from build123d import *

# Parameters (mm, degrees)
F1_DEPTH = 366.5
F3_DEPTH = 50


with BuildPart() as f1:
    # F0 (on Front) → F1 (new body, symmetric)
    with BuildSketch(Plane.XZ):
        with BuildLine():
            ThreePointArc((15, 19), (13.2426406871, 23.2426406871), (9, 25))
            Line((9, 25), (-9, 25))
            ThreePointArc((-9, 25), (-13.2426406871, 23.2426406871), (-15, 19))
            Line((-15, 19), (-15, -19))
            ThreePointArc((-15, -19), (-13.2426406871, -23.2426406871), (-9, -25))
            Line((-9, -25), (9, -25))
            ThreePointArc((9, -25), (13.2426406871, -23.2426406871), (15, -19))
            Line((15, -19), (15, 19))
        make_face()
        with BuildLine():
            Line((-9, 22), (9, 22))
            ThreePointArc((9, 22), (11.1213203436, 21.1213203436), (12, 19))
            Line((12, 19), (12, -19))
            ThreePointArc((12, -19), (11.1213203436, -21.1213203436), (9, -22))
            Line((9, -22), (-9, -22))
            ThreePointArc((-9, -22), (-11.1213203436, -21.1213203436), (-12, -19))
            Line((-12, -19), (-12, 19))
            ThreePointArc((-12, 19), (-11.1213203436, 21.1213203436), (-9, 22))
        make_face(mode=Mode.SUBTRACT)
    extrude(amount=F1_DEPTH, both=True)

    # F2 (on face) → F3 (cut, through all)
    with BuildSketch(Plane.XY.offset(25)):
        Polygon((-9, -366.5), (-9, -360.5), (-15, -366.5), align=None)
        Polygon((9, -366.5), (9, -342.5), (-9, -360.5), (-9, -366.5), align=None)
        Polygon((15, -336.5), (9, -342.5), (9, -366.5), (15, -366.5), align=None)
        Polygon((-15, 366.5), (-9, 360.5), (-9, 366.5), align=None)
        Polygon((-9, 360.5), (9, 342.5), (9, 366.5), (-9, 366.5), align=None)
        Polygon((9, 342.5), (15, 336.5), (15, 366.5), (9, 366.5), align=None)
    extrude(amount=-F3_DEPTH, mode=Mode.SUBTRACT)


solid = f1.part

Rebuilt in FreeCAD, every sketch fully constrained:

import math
import FreeCAD as App
import Part
import Sketcher
from FreeCAD import Vector
Q = App.Units.Quantity


def add_polygon(sketch, points):
    """Adds a closed chain of lines whose ends are joined by coincident constraints."""
    first, n = sketch.GeometryCount, len(points)
    for a, b in zip(points, points[1:] + points[:1]):
        sketch.addGeometry(Part.LineSegment(App.Vector(*a, 0), App.Vector(*b, 0)), False)
    for i in range(n):
        sketch.addConstraint(Sketcher.Constraint("Coincident", first + i, 2, first + (i + 1) % n, 1))

doc = App.newDocument("Part")
body = doc.addObject("PartDesign::Body", "Body")

# Sketch on XZ plane
sketch1 = body.newObject("Sketcher::SketchObject", "Sketch")
sketch1.AttachmentSupport = (doc.getObject("XZ_Plane"), [""])
sketch1.MapMode = "FlatFace"
sketch1.addGeometry([
    Part.ArcOfCircle(Part.Circle(Vector(9, 19, 0), Vector(0, 0, 1), 6), math.radians(0), math.radians(90)),  # 0
    Part.LineSegment(Vector(9, 25, 0), Vector(-9, 25, 0)),  # 1
    Part.ArcOfCircle(Part.Circle(Vector(-9, 19, 0), Vector(0, 0, 1), 6), math.radians(90), math.radians(180)),  # 2
    Part.LineSegment(Vector(-15, 19, 0), Vector(-15, -19, 0)),  # 3
    Part.ArcOfCircle(Part.Circle(Vector(-9, -19, 0), Vector(0, 0, 1), 6), math.radians(180), math.radians(270)),  # 4
    Part.LineSegment(Vector(-9, -25, 0), Vector(9, -25, 0)),  # 5
    Part.ArcOfCircle(Part.Circle(Vector(9, -19, 0), Vector(0, 0, 1), 6), math.radians(-90), math.radians(0)),  # 6
    Part.LineSegment(Vector(15, -19, 0), Vector(15, 19, 0)),  # 7
    Part.ArcOfCircle(Part.Circle(Vector(-9, 19, 0), Vector(0, 0, 1), 3), math.radians(90), math.radians(180)),  # 8
    Part.LineSegment(Vector(-9, 22, 0), Vector(9, 22, 0)),  # 9
    Part.ArcOfCircle(Part.Circle(Vector(9, 19, 0), Vector(0, 0, 1), 3), math.radians(0), math.radians(90)),  # 10
    Part.LineSegment(Vector(12, 19, 0), Vector(12, -19, 0)),  # 11
    Part.ArcOfCircle(Part.Circle(Vector(9, -19, 0), Vector(0, 0, 1), 3), math.radians(-90), math.radians(0)),  # 12
    Part.LineSegment(Vector(9, -22, 0), Vector(-9, -22, 0)),  # 13
    Part.ArcOfCircle(Part.Circle(Vector(-9, -19, 0), Vector(0, 0, 1), 3), math.radians(180), math.radians(270)),  # 14
    Part.LineSegment(Vector(-12, -19, 0), Vector(-12, 19, 0)),  # 15
], False)
sketch1.addConstraint([
    Sketcher.Constraint("Tangent", 0, 2, 1, 1),
    Sketcher.Constraint("Tangent", 1, 2, 2, 1),
    Sketcher.Constraint("Tangent", 2, 2, 3, 1),
    Sketcher.Constraint("Tangent", 3, 2, 4, 1),
    Sketcher.Constraint("Tangent", 4, 2, 5, 1),
    Sketcher.Constraint("Tangent", 5, 2, 6, 1),
    Sketcher.Constraint("Tangent", 6, 2, 7, 1),
    Sketcher.Constraint("Tangent", 7, 2, 0, 1),
    Sketcher.Constraint("Tangent", 8, 1, 9, 1),
    Sketcher.Constraint("Tangent", 9, 2, 10, 2),
    Sketcher.Constraint("Tangent", 10, 1, 11, 1),
    Sketcher.Constraint("Tangent", 11, 2, 12, 2),
    Sketcher.Constraint("Tangent", 12, 1, 13, 1),
    Sketcher.Constraint("Tangent", 13, 2, 14, 2),
    Sketcher.Constraint("Tangent", 14, 1, 15, 1),
    Sketcher.Constraint("Tangent", 15, 2, 8, 2),
    Sketcher.Constraint("Horizontal", 1),
    Sketcher.Constraint("Vertical", 3),
    Sketcher.Constraint("Horizontal", 5),
    Sketcher.Constraint("Vertical", 7),
    Sketcher.Constraint("Horizontal", 9),
    Sketcher.Constraint("Vertical", 11),
    Sketcher.Constraint("Horizontal", 13),
    Sketcher.Constraint("Vertical", 15),
    Sketcher.Constraint("Coincident", 8, 3, 2, 3),
    Sketcher.Constraint("Coincident", 10, 3, 0, 3),
    Sketcher.Constraint("Coincident", 12, 3, 6, 3),
    Sketcher.Constraint("Equal", 0, 2),
    Sketcher.Constraint("Equal", 2, 4),
    Sketcher.Constraint("Equal", 4, 6),
    Sketcher.Constraint("Equal", 12, 14),
    Sketcher.Constraint("Symmetric", 0, 3, 4, 3, -1, 1),
    Sketcher.Constraint("Radius", 0, Q("6 mm")),
    Sketcher.Constraint("Radius", 8, Q("3 mm")),
    Sketcher.Constraint("DistanceX", 1, 2, 1, 1, Q("18 mm")),
    Sketcher.Constraint("DistanceY", 3, 2, 3, 1, Q("38 mm")),
])
pad1 = body.newObject("PartDesign::Pad", "Pad")
pad1.Profile = sketch1
pad1.Length = 733
pad1.Midplane = True

# Sketch on XY plane
sketch2 = body.newObject("Sketcher::SketchObject", "Sketch001")
sketch2.AttachmentSupport = (doc.getObject("XY_Plane"), [""])
sketch2.MapMode = "FlatFace"
sketch2.AttachmentOffset = App.Placement(Vector(0, 0, 25), App.Rotation())
add_polygon(sketch2, [(-15, -366), (15, -366), (15, -336)])  # lines 0-2
add_polygon(sketch2, [(-15, 366), (15, 336), (15, 366)])  # lines 3-5
sketch2.addConstraint([
    Sketcher.Constraint("Horizontal", 0),
    Sketcher.Constraint("Vertical", 1),
    Sketcher.Constraint("Vertical", 4),
    Sketcher.Constraint("Horizontal", 5),
    Sketcher.Constraint("Symmetric", 2, 2, 4, 2, -1, 1),
    Sketcher.Constraint("Symmetric", 1, 2, 3, 2, -1),
    Sketcher.Constraint("Perpendicular", 2, 3),
    Sketcher.Constraint("Vertical", 2, 2, 5, 2),
    Sketcher.Constraint("DistanceX", 0, 1, 0, 2, Q("30 mm")),
    Sketcher.Constraint("DistanceY", 1, 2, 3, 2, Q("673 mm")),
])
pocket1 = body.newObject("PartDesign::Pocket", "Pocket")
pocket1.Profile = sketch2
pocket1.Type = "ThroughAll"

doc.recompute()
